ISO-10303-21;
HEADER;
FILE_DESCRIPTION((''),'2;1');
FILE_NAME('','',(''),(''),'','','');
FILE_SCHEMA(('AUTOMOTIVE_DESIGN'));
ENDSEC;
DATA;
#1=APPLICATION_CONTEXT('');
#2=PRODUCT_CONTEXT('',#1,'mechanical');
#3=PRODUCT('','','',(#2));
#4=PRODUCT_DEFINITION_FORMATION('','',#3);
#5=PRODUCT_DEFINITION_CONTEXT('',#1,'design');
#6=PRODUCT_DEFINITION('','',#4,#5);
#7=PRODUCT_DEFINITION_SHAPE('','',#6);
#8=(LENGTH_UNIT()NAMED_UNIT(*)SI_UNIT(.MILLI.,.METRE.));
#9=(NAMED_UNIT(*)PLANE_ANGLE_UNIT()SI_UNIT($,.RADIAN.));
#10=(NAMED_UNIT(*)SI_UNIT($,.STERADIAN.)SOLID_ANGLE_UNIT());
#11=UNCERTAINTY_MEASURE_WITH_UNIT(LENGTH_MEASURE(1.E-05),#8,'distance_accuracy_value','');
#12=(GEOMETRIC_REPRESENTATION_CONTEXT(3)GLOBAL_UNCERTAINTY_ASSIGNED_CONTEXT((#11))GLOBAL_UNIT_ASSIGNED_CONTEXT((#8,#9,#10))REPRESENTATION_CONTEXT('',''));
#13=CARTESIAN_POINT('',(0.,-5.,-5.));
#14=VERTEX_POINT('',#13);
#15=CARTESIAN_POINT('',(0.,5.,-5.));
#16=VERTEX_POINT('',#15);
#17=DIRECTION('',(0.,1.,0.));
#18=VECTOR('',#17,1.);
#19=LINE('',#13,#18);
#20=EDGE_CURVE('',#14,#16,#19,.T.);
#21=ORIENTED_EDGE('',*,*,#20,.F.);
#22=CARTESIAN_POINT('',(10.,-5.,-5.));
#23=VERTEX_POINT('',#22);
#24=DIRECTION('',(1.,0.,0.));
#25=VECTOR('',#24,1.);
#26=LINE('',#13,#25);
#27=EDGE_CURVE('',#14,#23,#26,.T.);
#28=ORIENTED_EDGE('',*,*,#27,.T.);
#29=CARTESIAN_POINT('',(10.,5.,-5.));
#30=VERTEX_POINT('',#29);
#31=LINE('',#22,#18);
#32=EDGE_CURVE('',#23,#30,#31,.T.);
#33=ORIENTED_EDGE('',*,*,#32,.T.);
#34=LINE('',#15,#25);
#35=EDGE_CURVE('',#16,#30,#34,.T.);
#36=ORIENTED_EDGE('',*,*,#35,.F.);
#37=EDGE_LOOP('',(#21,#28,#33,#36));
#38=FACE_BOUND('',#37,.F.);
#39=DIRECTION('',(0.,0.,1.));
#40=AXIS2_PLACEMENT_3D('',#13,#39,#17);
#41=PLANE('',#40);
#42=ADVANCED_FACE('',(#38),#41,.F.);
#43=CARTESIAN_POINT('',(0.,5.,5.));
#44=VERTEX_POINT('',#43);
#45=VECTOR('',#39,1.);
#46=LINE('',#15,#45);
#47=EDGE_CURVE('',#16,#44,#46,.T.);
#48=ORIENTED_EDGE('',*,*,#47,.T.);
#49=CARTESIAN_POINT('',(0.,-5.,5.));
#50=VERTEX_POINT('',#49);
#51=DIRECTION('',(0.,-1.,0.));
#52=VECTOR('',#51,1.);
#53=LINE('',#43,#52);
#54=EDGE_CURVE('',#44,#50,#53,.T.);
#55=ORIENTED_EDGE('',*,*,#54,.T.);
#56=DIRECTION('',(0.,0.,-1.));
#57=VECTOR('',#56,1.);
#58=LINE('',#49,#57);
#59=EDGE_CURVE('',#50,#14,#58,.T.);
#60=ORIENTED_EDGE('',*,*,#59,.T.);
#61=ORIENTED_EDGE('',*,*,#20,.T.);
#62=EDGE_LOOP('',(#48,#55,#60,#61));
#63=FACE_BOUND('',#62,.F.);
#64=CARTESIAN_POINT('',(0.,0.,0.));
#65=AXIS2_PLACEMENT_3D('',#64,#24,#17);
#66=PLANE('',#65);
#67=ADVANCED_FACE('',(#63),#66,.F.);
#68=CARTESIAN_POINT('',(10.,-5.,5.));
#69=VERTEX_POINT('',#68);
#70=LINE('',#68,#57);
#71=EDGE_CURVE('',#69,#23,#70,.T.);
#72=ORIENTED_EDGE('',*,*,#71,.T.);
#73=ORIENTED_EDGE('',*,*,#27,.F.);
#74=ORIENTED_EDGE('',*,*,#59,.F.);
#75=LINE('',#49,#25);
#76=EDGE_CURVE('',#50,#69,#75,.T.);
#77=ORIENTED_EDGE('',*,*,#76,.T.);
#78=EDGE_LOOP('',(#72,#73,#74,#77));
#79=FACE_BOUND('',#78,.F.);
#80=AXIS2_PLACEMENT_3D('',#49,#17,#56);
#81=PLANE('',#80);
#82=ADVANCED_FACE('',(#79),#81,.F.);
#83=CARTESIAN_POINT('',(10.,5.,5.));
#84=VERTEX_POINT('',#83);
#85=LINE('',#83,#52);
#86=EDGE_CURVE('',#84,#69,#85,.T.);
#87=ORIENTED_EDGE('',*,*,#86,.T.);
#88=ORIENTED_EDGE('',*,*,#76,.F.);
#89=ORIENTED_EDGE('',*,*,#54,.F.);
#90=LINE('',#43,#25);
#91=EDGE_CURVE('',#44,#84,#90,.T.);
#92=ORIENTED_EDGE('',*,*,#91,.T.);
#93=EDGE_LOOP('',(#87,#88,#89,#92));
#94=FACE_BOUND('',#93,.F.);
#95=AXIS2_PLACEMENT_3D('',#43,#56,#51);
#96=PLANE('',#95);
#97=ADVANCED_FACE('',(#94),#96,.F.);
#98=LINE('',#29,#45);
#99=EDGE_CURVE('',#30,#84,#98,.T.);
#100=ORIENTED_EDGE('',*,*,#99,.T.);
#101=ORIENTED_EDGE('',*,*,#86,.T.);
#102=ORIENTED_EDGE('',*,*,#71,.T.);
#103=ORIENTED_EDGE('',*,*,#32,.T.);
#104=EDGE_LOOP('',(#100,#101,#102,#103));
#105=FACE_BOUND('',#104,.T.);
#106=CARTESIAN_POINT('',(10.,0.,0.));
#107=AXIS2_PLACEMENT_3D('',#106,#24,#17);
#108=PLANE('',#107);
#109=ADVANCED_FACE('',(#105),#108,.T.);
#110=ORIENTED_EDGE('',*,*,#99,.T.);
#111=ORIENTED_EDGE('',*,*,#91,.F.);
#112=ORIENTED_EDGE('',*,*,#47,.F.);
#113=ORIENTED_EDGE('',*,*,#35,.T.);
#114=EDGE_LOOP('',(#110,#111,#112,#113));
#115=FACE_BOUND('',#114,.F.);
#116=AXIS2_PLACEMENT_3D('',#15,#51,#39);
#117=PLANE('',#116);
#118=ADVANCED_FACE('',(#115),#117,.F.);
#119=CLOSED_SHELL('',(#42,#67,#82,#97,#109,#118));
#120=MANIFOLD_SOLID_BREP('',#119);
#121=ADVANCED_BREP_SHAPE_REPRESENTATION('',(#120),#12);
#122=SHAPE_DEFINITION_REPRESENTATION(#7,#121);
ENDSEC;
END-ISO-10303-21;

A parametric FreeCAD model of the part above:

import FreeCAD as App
import Part
import Sketcher


def add_polygon(sketch, points):
    """Adds a closed chain of lines whose ends are joined by coincident constraints."""
    first, n = sketch.GeometryCount, len(points)
    for a, b in zip(points, points[1:] + points[:1]):
        sketch.addGeometry(Part.LineSegment(App.Vector(*a, 0), App.Vector(*b, 0)), False)
    for i in range(n):
        sketch.addConstraint(Sketcher.Constraint("Coincident", first + i, 2, first + (i + 1) % n, 1))

doc = App.newDocument("Part")
params = doc.addObject("Spreadsheet::Sheet", "Params")
for row, (alias, value) in enumerate([
    ("sketch1_width", "10 mm"),
    ("pad1_length", "10 mm"),
], start=1):
    params.set(f"A{row}", alias)
    params.set(f"B{row}", "=" + value)
    params.setAlias(f"B{row}", alias)

body = doc.addObject("PartDesign::Body", "Body")

# Sketch on YZ plane
sketch1 = doc.addObject("Sketcher::SketchObject", "Sketch")
body.addObject(sketch1)
sketch1.AttachmentSupport = (doc.YZ_Plane, [""])
sketch1.MapMode = "FlatFace"
add_polygon(sketch1, [(-5, 5), (-5, -5), (5, -5), (5, 5)])  # lines 0-3
sketch1.addConstraint(Sketcher.Constraint("Vertical", 0))
sketch1.addConstraint(Sketcher.Constraint("Horizontal", 1))
sketch1.addConstraint(Sketcher.Constraint("Vertical", 2))
sketch1.addConstraint(Sketcher.Constraint("Horizontal", 3))
sketch1.addConstraint(Sketcher.Constraint("Symmetric", 0, 2, 2, 2, -1, 1))
sketch1.addConstraint(Sketcher.Constraint("Equal", 3, 0))
sketch1.addConstraint(Sketcher.Constraint("DistanceX", 1, 1, 1, 2, 10.0))
sketch1.setExpression("Constraints[10]", "Params.sketch1_width")
pad1 = doc.addObject("PartDesign::Pad", "Pad")
body.addObject(pad1)
pad1.Profile = sketch1
pad1.setExpression("Length", "Params.pad1_length")

doc.recompute()
